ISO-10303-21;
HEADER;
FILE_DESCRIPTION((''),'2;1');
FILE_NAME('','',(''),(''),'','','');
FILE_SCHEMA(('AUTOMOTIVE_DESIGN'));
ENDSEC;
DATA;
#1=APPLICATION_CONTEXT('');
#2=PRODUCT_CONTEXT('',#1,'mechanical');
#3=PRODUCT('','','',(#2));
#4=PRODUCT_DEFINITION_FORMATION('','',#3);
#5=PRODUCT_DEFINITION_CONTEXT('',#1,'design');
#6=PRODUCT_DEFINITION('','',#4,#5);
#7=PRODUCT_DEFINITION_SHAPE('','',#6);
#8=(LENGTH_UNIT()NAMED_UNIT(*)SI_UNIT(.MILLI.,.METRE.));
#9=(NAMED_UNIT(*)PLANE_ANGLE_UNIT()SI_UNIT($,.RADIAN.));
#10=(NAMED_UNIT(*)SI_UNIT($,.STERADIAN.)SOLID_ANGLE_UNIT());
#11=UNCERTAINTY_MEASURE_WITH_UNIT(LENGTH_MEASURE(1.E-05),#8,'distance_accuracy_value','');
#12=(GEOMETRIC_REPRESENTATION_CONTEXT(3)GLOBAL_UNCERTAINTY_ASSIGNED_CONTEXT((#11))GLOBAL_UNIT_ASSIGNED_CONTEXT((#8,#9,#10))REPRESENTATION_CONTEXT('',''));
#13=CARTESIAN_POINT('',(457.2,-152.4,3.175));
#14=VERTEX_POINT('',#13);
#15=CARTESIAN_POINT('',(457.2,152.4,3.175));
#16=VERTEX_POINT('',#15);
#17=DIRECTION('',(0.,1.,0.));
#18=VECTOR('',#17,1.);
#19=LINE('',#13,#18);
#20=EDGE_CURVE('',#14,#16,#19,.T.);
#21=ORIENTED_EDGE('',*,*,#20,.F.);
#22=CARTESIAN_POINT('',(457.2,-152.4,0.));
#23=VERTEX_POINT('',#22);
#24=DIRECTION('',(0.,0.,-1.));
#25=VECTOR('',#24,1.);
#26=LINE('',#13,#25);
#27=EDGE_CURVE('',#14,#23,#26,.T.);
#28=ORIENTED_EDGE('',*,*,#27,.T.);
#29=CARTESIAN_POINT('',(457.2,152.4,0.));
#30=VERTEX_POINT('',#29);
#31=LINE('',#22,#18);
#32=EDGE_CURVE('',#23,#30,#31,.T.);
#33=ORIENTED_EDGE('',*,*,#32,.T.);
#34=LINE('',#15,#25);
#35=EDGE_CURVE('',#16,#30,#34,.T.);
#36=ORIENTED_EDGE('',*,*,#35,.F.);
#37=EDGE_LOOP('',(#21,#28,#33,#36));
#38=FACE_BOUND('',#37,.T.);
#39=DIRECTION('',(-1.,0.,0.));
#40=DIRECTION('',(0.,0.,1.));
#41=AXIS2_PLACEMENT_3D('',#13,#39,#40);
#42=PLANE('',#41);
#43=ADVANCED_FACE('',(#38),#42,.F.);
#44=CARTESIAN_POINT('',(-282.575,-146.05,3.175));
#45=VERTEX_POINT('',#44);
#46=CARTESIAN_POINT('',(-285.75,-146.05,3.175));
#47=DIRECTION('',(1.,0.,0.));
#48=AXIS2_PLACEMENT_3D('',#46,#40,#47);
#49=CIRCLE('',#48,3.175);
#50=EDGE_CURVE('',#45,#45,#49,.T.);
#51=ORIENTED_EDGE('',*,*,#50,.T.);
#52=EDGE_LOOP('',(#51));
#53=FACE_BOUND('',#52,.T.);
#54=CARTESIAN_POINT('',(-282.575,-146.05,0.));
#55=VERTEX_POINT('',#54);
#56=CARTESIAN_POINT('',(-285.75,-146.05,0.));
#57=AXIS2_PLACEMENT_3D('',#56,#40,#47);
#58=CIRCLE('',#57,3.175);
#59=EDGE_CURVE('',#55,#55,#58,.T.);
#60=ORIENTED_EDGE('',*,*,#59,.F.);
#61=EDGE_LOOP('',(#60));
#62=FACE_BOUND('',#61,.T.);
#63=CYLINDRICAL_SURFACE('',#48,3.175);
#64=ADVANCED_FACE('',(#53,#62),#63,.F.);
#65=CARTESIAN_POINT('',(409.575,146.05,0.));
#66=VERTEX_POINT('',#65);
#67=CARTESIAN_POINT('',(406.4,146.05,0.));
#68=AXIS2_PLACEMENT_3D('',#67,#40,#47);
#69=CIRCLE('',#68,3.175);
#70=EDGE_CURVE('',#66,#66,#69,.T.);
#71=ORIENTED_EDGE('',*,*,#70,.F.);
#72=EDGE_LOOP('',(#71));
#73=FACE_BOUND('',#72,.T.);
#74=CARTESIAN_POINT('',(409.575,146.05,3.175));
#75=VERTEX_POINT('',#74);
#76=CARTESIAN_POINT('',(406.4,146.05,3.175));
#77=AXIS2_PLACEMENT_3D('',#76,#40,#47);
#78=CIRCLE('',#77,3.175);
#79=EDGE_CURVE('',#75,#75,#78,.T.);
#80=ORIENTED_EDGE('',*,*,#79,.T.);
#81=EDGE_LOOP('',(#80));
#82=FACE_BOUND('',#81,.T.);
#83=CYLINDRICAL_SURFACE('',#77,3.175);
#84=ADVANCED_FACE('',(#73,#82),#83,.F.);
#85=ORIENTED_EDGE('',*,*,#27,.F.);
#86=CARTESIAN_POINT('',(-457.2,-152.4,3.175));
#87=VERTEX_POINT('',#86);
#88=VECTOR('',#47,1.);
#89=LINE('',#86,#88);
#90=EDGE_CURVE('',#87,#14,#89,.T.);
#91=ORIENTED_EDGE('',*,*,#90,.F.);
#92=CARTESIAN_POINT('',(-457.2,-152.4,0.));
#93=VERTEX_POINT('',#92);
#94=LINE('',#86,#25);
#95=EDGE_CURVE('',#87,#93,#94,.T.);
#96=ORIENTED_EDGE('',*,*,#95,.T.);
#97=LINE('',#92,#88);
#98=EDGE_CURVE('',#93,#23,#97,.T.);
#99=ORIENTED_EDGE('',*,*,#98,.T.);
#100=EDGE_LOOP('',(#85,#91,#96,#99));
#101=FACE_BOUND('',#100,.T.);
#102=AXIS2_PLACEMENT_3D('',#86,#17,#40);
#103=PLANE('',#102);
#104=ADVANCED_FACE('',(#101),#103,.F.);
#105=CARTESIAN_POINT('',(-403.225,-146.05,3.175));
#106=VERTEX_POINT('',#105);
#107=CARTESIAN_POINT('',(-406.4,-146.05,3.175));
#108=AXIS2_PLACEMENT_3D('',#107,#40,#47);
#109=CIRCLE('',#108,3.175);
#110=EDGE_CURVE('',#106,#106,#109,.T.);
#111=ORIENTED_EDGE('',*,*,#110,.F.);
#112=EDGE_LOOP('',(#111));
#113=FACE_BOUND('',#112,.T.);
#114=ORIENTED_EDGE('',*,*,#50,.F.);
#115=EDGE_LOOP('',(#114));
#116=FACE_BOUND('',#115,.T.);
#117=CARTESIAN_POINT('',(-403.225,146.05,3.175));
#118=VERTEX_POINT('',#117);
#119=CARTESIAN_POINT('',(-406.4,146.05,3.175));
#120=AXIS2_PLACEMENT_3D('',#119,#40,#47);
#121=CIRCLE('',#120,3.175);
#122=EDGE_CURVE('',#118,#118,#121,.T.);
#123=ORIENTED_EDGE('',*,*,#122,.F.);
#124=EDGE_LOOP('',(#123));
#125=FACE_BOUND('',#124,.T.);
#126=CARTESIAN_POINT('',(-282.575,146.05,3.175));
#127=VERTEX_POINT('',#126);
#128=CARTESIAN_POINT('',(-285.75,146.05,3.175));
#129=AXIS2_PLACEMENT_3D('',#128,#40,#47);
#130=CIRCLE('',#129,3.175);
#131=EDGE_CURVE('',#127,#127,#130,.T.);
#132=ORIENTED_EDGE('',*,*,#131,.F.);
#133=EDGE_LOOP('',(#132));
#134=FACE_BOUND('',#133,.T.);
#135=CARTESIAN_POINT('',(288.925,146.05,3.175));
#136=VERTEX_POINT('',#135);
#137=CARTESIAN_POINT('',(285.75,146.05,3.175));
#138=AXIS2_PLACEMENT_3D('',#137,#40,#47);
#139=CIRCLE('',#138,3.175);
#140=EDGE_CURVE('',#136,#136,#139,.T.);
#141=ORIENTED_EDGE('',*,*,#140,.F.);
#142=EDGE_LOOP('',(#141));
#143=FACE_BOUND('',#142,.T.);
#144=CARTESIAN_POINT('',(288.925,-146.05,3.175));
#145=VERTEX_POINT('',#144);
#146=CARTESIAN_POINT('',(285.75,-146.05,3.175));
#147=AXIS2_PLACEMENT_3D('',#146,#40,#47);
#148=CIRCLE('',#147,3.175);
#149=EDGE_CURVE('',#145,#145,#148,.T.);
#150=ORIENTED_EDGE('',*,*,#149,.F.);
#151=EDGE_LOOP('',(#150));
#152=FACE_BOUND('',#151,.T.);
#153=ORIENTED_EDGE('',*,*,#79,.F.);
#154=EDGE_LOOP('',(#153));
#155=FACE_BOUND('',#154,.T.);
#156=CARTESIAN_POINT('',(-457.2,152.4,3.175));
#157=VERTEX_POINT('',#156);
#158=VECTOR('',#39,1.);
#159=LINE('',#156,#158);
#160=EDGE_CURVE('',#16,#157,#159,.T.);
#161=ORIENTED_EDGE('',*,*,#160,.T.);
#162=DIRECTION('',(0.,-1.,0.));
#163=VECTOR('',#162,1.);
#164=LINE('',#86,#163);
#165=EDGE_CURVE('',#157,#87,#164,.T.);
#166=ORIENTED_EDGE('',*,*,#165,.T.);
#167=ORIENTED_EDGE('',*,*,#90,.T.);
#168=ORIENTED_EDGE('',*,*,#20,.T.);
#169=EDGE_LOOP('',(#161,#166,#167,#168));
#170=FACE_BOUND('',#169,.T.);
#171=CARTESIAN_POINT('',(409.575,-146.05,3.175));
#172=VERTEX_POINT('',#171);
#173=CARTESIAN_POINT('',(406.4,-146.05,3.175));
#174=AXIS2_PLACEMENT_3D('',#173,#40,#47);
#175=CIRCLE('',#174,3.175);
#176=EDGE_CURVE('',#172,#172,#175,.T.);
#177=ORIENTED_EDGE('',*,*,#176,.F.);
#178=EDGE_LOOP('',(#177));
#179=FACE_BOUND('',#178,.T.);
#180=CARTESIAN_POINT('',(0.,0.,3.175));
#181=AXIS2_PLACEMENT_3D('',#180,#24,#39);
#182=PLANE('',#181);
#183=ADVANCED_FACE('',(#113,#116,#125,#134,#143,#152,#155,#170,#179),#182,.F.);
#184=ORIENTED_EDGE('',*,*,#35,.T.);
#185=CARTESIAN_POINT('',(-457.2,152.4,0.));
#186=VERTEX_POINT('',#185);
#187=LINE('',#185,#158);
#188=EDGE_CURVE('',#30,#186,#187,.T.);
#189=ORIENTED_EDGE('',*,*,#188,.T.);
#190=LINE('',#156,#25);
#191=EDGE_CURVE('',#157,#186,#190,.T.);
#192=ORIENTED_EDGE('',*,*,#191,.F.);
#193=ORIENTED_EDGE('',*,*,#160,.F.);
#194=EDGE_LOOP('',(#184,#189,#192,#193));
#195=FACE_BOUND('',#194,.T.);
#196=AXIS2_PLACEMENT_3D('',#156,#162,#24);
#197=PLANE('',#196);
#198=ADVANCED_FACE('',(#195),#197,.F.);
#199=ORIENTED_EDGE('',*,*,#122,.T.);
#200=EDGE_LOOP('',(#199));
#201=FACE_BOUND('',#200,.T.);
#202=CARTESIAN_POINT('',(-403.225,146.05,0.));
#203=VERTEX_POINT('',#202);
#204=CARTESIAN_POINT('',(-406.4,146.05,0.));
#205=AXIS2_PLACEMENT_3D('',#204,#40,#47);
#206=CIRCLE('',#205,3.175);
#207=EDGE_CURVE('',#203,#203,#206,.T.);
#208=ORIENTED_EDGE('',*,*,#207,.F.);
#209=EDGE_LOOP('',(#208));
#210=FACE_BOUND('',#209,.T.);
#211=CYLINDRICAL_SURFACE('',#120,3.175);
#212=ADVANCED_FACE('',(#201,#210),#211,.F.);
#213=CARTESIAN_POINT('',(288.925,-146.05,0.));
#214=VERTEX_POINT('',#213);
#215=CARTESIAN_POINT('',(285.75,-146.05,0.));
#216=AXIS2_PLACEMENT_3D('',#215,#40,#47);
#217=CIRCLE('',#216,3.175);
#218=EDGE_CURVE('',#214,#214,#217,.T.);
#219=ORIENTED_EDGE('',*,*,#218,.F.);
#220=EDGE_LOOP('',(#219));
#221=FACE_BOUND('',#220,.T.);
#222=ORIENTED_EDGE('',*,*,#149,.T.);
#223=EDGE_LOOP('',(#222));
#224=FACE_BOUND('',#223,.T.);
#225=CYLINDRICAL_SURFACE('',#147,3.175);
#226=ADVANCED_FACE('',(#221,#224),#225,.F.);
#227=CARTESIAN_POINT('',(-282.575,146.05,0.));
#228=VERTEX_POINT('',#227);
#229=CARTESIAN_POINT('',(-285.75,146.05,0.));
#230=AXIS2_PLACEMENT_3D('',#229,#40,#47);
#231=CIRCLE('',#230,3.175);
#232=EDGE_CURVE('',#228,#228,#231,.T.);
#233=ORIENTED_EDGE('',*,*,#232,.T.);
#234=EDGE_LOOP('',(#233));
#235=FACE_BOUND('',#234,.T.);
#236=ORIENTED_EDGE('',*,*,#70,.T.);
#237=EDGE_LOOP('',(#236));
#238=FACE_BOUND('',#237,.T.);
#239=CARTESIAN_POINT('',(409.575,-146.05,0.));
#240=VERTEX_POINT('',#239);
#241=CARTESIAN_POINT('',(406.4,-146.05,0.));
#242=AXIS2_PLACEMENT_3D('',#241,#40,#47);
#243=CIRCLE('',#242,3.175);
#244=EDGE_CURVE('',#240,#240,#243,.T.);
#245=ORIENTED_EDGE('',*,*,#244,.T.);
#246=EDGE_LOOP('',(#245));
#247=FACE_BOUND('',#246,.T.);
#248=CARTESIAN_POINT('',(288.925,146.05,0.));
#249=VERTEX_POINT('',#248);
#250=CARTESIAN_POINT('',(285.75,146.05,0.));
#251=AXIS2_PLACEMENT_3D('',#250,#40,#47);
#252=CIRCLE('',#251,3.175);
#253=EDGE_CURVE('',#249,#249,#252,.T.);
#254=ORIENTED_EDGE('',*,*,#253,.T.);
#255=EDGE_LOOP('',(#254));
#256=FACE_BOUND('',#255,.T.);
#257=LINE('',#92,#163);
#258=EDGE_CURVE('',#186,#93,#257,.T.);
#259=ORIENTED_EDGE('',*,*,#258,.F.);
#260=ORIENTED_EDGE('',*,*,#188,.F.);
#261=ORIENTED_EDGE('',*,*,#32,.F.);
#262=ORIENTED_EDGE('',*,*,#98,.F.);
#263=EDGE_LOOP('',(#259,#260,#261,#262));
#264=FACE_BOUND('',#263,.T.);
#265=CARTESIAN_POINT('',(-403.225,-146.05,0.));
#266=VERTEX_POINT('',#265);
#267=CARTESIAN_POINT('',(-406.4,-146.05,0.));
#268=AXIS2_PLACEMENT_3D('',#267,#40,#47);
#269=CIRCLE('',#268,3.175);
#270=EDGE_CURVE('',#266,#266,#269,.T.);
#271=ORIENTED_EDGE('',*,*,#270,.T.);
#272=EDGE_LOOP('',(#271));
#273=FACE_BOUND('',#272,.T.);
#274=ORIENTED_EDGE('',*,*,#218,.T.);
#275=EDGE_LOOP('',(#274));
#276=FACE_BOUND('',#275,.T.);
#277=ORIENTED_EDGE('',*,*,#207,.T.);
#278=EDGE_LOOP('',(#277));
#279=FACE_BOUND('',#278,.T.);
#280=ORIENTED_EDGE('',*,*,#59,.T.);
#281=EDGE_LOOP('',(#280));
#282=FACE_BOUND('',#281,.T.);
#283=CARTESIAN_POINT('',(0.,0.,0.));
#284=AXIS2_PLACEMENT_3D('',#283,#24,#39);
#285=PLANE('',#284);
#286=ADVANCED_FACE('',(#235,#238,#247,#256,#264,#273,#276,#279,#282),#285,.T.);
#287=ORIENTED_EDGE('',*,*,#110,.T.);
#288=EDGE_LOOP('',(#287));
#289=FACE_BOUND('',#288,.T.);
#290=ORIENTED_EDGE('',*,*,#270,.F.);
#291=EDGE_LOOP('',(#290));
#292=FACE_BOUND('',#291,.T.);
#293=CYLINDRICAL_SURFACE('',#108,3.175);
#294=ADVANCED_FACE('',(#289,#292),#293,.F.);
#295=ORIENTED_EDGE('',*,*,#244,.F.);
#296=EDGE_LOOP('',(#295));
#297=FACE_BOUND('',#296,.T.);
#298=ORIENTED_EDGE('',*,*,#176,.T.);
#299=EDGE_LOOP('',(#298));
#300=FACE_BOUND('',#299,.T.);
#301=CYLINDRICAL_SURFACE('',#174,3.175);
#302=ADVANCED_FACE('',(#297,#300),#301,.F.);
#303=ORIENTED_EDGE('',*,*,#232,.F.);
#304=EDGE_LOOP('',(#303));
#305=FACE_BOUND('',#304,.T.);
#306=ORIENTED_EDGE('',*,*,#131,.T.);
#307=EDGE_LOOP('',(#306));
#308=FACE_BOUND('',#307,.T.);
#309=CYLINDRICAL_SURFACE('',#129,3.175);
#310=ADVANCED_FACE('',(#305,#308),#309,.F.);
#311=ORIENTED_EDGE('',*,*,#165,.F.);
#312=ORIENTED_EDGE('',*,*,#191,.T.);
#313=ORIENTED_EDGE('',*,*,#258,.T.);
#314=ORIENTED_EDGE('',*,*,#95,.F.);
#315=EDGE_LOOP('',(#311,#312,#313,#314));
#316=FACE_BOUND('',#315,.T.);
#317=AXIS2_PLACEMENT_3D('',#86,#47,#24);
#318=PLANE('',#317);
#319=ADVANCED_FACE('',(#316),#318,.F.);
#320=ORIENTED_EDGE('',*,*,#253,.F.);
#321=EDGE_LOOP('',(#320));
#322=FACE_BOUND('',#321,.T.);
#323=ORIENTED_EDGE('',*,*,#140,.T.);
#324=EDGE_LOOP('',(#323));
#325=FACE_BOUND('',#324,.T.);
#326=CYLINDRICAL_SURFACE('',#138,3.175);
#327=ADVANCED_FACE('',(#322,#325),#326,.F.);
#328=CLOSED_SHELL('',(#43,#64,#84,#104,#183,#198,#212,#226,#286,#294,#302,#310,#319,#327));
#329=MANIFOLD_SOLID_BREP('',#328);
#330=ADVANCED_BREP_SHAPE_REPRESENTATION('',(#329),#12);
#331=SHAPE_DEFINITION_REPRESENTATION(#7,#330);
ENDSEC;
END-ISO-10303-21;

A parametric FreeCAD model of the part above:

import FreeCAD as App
import Part
import Sketcher
Q = App.Units.Quantity


def add_polygon(sketch, points):
    """Adds a closed chain of lines whose ends are joined by coincident constraints."""
    first, n = sketch.GeometryCount, len(points)
    for a, b in zip(points, points[1:] + points[:1]):
        sketch.addGeometry(Part.LineSegment(App.Vector(*a, 0), App.Vector(*b, 0)), False)
    for i in range(n):
        sketch.addConstraint(Sketcher.Constraint("Coincident", first + i, 2, first + (i + 1) % n, 1))

doc = App.newDocument("Part")
body = doc.addObject("PartDesign::Body", "Body")

# Sketch on XY plane
sketch1 = doc.addObject("Sketcher::SketchObject", "Sketch")
body.addObject(sketch1)
sketch1.AttachmentSupport = (doc.XY_Plane, [""])
sketch1.MapMode = "FlatFace"
add_polygon(sketch1, [(-457, 152), (-457, -152), (457, -152), (457, 152)])  # lines 0-3
sketch1.addConstraint(Sketcher.Constraint("Vertical", 0))
sketch1.addConstraint(Sketcher.Constraint("Horizontal", 1))
sketch1.addConstraint(Sketcher.Constraint("Vertical", 2))
sketch1.addConstraint(Sketcher.Constraint("Horizontal", 3))
sketch1.addConstraint(Sketcher.Constraint("Symmetric", 0, 2, 2, 2, -1, 1))
sketch1.addConstraint(Sketcher.Constraint("DistanceX", 1, 1, 1, 2, Q("36 in")))
sketch1.addConstraint(Sketcher.Constraint("DistanceY", 0, 2, 0, 1, Q("12 in")))
pad1 = doc.addObject("PartDesign::Pad", "Pad")
body.addObject(pad1)
pad1.Profile = sketch1
pad1.Length = Q("0.125 in")

# Sketch on XY plane
sketch2 = doc.addObject("Sketcher::SketchObject", "Sketch001")
body.addObject(sketch2)
sketch2.AttachmentSupport = (doc.XY_Plane, [""])
sketch2.MapMode = "FlatFace"
sketch2.AttachmentOffset = App.Placement(App.Vector(0, 0, 0.125 * 25.4), App.Rotation())
sketch2.addGeometry(Part.Circle(App.Vector(285.8, 146.1, 0), App.Vector(0, 0, 1), 3.2), False)
sketch2.addGeometry(Part.Circle(App.Vector(406.4, 146.1, 0), App.Vector(0, 0, 1), 3.2), False)
sketch2.addGeometry(Part.Circle(App.Vector(406.4, -146.1, 0), App.Vector(0, 0, 1), 3.2), False)
sketch2.addGeometry(Part.Circle(App.Vector(285.8, -146.1, 0), App.Vector(0, 0, 1), 3.2), False)
sketch2.addConstraint(Sketcher.Constraint("Equal", 0, 1))
sketch2.addConstraint(Sketcher.Constraint("Equal", 1, 2))
sketch2.addConstraint(Sketcher.Constraint("Equal", 2, 3))
sketch2.addConstraint(Sketcher.Constraint("Symmetric", 1, 3, 2, 3, -1))
sketch2.addConstraint(Sketcher.Constraint("Symmetric", 0, 3, 3, 3, -1))
sketch2.addConstraint(Sketcher.Constraint("Horizontal", 0, 3, 1, 3))
sketch2.addConstraint(Sketcher.Constraint("Diameter", 0, Q("0.25 in")))
sketch2.addConstraint(Sketcher.Constraint("DistanceX", -1, 1, 1, 3, Q("16 in")))
sketch2.addConstraint(Sketcher.Constraint("DistanceY", 2, 3, 1, 3, Q("11.5 in")))
sketch2.addConstraint(Sketcher.Constraint("DistanceX", -1, 1, 0, 3, Q("11.25 in")))
doc.recompute()
hole = doc.addObject("PartDesign::Hole", "Hole")
body.addObject(hole)
hole.Profile = sketch2
hole.ThreadType = "None"
hole.Diameter = Q("0.25 in")
hole.DepthType = "ThroughAll"
doc.recompute()

mirrored = doc.addObject("PartDesign::Mirrored", "Mirrored")
body.addObject(mirrored)
mirrored.Originals = [hole]
mirrored.MirrorPlane = (doc.YZ_Plane, [""])
body.Tip = mirrored

doc.recompute()
